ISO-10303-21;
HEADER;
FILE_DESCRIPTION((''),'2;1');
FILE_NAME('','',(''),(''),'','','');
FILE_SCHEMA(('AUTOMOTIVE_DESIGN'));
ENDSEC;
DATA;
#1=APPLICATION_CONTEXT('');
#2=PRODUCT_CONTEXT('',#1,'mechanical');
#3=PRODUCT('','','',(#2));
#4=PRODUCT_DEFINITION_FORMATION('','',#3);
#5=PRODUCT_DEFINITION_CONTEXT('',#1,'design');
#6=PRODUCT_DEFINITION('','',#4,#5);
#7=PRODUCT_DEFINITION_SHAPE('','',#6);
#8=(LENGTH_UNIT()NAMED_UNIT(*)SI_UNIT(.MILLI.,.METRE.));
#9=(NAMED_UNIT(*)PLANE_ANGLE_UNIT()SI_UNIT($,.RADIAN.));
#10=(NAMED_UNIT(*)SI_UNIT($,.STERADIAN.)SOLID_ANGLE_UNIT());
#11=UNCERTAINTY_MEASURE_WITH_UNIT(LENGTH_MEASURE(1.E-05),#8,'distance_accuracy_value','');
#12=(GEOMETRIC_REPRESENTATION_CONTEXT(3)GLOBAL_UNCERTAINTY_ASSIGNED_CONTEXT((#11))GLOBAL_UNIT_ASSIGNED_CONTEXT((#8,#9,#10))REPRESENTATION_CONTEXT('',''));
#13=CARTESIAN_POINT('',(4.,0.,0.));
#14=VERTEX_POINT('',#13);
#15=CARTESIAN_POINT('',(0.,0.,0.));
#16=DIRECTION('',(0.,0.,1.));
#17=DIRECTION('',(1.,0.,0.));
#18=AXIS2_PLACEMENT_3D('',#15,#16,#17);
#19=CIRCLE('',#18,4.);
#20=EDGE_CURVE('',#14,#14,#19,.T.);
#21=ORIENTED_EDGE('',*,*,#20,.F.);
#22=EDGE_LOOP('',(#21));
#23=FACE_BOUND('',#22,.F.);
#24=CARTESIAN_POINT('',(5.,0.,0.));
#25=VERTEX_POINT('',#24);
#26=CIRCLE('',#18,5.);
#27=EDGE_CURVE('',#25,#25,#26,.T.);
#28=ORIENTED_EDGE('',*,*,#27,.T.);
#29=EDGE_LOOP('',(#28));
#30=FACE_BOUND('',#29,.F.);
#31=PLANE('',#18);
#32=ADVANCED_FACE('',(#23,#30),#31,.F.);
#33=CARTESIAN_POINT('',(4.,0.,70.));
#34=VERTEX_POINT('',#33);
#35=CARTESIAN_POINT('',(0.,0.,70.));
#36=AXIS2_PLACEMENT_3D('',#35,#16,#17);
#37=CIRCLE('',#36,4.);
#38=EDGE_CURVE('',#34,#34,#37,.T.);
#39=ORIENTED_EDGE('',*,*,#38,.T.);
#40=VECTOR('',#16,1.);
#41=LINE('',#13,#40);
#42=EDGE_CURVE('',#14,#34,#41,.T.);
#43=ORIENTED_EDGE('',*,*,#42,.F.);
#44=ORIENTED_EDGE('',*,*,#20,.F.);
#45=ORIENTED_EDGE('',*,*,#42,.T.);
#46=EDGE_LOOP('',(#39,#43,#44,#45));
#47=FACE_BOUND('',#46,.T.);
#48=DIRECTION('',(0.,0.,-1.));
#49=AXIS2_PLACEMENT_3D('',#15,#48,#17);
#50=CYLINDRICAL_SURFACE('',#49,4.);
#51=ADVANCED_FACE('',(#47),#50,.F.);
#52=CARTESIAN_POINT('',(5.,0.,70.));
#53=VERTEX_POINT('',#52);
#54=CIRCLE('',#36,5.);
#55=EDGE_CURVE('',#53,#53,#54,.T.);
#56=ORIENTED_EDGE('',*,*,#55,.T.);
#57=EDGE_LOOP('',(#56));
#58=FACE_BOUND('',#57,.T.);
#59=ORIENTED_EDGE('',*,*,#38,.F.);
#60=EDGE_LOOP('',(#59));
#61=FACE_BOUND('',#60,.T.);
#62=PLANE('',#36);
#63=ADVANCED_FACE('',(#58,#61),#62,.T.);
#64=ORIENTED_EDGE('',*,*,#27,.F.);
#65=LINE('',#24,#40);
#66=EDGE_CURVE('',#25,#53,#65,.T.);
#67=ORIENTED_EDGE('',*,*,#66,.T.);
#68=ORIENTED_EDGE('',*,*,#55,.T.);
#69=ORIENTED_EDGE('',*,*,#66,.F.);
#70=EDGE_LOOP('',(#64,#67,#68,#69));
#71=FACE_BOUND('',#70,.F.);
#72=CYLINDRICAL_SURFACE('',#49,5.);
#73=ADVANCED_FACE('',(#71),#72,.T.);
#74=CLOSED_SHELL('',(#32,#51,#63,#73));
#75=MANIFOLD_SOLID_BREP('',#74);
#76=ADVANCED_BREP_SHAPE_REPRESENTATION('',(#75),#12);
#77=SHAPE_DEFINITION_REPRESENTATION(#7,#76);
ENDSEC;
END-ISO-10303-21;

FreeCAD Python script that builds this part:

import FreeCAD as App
import Part
import Sketcher
from FreeCAD import Vector

doc = App.newDocument("Part")
body = doc.addObject("PartDesign::Body", "Body")

# Sketch on XY plane
sketch1 = body.newObject("Sketcher::SketchObject", "Sketch")
sketch1.AttachmentSupport = (doc.getObject("XY_Plane"), [""])
sketch1.MapMode = "FlatFace"
sketch1.addGeometry(Part.Circle(Vector(0, 0, 0), Vector(0, 0, 1), 5), False)
sketch1.addGeometry(Part.Circle(Vector(0, 0, 0), Vector(0, 0, 1), 4), False)
sketch1.addConstraint(Sketcher.Constraint("Coincident", 0, 3, -1, 1))
sketch1.addConstraint(Sketcher.Constraint("Coincident", 1, 3, -1, 1))
sketch1.addConstraint(Sketcher.Constraint("Diameter", 0, 10.0))
sketch1.addConstraint(Sketcher.Constraint("Diameter", 1, 8.0))
pad1 = body.newObject("PartDesign::Pad", "Pad")
pad1.Profile = sketch1
pad1.Length = 70

doc.recompute()
